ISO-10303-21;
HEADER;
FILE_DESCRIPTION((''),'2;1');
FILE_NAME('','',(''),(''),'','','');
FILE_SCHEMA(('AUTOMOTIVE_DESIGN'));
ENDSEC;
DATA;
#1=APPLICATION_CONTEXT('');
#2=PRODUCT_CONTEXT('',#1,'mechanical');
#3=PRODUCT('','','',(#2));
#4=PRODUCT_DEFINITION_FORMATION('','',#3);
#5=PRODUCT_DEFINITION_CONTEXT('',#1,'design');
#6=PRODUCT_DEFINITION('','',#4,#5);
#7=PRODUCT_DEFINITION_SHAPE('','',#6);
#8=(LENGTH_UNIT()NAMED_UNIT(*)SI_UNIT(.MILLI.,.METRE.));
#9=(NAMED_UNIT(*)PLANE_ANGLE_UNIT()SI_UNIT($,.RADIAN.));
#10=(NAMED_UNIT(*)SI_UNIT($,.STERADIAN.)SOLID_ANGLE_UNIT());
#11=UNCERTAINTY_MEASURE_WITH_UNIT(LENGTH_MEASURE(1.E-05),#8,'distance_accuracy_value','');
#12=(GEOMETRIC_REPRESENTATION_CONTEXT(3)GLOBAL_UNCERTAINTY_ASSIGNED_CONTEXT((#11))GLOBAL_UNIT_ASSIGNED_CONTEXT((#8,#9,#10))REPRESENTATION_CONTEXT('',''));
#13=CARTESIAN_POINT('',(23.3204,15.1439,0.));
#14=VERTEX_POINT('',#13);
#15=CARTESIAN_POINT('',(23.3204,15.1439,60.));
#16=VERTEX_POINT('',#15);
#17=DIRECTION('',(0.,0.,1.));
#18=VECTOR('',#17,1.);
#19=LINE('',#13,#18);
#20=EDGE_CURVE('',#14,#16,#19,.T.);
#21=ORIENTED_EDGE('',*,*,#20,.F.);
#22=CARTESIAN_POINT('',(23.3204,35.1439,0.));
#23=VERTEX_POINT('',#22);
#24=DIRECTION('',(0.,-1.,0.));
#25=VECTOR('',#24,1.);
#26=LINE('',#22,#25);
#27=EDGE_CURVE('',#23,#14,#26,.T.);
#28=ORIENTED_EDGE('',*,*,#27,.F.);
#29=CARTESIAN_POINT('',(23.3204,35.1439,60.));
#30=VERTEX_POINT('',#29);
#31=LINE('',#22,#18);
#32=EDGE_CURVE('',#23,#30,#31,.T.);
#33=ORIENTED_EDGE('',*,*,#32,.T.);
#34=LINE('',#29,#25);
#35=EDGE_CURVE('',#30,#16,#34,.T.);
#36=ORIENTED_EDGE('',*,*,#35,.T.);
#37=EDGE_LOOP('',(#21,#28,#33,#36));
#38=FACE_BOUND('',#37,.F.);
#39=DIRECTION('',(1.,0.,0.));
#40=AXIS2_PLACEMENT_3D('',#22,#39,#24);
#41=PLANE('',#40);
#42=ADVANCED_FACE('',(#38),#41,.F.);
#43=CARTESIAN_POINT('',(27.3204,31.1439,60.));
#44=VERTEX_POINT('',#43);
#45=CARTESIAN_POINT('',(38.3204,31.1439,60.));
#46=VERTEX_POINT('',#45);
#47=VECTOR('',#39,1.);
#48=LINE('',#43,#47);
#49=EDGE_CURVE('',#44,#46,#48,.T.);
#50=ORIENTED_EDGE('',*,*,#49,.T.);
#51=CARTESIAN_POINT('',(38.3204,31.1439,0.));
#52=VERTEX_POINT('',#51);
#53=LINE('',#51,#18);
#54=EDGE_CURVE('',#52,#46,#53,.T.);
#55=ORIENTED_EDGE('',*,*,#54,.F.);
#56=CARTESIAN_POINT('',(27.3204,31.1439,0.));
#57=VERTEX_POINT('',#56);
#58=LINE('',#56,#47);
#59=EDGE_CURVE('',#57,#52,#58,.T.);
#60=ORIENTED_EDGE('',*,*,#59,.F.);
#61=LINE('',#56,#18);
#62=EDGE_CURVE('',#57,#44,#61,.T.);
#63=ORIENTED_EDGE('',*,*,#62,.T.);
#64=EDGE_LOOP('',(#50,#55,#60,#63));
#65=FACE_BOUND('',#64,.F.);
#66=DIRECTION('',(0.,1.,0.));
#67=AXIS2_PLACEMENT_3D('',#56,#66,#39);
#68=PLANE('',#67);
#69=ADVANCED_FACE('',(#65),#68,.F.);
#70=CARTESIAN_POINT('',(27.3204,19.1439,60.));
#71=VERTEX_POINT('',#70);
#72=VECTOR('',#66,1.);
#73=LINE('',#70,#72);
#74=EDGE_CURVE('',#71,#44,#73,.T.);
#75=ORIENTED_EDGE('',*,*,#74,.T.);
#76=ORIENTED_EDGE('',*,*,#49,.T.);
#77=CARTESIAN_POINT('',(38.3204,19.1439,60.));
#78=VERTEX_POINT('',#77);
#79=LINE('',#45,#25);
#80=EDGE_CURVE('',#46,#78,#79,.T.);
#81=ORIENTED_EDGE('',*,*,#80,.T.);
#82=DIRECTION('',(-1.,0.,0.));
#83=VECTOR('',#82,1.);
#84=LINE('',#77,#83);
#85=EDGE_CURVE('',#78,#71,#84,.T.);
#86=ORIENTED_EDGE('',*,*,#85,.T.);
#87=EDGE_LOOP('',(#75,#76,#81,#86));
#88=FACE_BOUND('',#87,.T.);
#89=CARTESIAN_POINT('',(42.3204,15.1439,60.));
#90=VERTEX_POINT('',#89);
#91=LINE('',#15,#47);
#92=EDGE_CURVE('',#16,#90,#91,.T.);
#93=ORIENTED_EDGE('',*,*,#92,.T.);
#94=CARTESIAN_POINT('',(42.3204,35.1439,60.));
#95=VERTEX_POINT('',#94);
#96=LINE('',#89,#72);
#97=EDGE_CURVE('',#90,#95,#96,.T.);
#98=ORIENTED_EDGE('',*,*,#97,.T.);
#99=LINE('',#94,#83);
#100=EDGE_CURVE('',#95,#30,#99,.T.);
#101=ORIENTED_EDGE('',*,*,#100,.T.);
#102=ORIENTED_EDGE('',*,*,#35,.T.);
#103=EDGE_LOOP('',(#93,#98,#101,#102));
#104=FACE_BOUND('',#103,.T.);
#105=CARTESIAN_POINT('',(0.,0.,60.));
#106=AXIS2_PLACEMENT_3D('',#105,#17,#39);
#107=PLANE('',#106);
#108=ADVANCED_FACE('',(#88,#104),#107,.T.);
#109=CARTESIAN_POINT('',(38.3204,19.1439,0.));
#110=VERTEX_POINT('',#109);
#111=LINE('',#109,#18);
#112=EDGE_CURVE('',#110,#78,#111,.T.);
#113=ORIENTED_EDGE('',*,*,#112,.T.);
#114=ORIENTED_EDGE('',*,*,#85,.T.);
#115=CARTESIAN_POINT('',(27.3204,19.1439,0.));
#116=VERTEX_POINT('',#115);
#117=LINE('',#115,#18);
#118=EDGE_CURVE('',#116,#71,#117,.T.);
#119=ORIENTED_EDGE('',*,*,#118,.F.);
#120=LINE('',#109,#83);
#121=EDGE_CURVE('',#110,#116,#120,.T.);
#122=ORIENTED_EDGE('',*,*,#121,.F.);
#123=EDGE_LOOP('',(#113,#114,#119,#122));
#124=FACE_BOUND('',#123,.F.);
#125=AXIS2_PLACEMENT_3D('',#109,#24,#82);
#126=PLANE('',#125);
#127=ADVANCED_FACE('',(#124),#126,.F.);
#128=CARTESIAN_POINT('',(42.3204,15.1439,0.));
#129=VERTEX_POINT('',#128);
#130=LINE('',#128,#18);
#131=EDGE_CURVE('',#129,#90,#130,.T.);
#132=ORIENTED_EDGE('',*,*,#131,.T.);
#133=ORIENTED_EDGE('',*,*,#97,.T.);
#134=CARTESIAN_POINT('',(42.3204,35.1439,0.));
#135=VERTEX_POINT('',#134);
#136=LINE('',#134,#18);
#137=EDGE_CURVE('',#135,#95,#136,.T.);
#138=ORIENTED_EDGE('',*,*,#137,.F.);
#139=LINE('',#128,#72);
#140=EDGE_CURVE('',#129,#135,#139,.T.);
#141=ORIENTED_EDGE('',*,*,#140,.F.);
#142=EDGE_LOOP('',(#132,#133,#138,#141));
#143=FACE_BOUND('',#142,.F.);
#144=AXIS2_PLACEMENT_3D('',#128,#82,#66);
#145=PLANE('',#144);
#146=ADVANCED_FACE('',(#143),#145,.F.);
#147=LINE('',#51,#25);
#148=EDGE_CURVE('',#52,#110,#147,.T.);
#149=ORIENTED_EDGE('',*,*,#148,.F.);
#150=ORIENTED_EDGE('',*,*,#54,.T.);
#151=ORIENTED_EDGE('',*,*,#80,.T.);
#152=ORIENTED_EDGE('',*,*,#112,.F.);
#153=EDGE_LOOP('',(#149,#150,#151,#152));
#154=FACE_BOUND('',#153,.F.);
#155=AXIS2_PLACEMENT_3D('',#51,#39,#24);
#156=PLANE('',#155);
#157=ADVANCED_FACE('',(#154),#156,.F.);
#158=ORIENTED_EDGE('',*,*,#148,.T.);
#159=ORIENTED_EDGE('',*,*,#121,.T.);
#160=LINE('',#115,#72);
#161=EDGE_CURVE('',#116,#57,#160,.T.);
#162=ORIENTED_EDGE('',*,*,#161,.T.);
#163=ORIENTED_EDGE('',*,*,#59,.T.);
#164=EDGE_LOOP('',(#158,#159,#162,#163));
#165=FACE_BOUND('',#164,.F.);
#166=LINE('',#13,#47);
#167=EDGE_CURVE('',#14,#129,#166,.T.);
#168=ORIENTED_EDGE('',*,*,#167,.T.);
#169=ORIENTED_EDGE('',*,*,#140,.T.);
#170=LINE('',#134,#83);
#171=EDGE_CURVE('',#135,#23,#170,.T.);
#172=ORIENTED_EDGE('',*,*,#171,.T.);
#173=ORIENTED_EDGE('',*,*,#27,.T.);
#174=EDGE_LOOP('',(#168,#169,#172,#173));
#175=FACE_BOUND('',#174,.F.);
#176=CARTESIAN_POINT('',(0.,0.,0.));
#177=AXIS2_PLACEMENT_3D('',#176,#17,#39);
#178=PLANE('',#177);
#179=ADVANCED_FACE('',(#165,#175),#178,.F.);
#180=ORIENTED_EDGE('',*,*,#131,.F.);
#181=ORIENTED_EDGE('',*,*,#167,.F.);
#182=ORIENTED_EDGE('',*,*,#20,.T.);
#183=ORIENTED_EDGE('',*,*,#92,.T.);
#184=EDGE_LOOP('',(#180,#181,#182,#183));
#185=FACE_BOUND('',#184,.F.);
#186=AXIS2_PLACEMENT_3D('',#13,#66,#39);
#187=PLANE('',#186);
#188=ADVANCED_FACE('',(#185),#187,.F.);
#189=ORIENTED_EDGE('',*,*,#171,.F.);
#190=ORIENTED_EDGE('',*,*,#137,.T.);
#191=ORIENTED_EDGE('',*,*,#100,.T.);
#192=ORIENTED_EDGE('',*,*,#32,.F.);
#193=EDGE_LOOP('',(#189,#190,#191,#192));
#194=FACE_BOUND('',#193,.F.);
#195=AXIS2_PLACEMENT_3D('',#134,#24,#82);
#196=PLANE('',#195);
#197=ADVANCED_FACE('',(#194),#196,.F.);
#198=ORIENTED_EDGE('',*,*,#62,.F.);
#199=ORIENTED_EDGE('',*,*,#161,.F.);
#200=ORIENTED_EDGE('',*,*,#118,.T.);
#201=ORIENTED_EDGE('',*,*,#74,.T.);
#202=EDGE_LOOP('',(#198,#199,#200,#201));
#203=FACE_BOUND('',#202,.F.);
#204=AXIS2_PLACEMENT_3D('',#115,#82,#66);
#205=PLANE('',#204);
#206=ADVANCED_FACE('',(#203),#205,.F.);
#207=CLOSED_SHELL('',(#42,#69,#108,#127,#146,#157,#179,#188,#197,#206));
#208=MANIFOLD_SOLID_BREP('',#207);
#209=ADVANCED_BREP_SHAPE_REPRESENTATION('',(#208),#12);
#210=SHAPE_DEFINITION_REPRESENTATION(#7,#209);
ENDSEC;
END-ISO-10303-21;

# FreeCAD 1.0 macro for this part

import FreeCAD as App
import Part
import Sketcher

V = App.Vector

doc = App.newDocument("Part")
body = doc.addObject("PartDesign::Body", "Body")

sketch1 = body.newObject("Sketcher::SketchObject", "Sketch")
sketch1.AttachmentSupport = (doc.getObject("XY_Plane"), [""])
sketch1.MapMode = "FlatFace"
sketch1.addGeometry([
    Part.LineSegment(V(42, 15, 0), V(42, 35, 0)),
    Part.LineSegment(V(42, 35, 0), V(23, 35, 0)),
    Part.LineSegment(V(23, 35, 0), V(23, 15, 0)),
    Part.LineSegment(V(23, 15, 0), V(42, 15, 0)),
    Part.LineSegment(V(27, 19, 0), V(27, 31, 0)),
    Part.LineSegment(V(27, 31, 0), V(38, 31, 0)),
    Part.LineSegment(V(38, 31, 0), V(38, 19, 0)),
    Part.LineSegment(V(38, 19, 0), V(27, 19, 0)),
], False)
sketch1.addConstraint([
    Sketcher.Constraint("Coincident", 0, 2, 1, 1),
    Sketcher.Constraint("Coincident", 1, 2, 2, 1),
    Sketcher.Constraint("Coincident", 2, 2, 3, 1),
    Sketcher.Constraint("Coincident", 3, 2, 0, 1),
    Sketcher.Constraint("Coincident", 4, 2, 5, 1),
    Sketcher.Constraint("Coincident", 5, 2, 6, 1),
    Sketcher.Constraint("Coincident", 6, 2, 7, 1),
    Sketcher.Constraint("Coincident", 7, 2, 4, 1),
    Sketcher.Constraint("Vertical", 0),
    Sketcher.Constraint("Horizontal", 1),
    Sketcher.Constraint("Vertical", 2),
    Sketcher.Constraint("Horizontal", 3),
    Sketcher.Constraint("Vertical", 4),
    Sketcher.Constraint("Horizontal", 5),
    Sketcher.Constraint("Vertical", 6),
    Sketcher.Constraint("Horizontal", 7),
    Sketcher.Constraint("DistanceX", 5, 1, 5, 2, 11.0),
    Sketcher.Constraint("DistanceY", 4, 1, 4, 2, 12.0),
    Sketcher.Constraint("DistanceX", 1, 2, 4, 2, 4.0),
    Sketcher.Constraint("DistanceY", 4, 2, 1, 2, 4.0),
    Sketcher.Constraint("DistanceX", 5, 2, 0, 2, 4.0),
    Sketcher.Constraint("DistanceY", 3, 2, 6, 2, 4.0),
    Sketcher.Constraint("DistanceY", -1, 1, 0, 2, 35.144),
    Sketcher.Constraint("DistanceX", -1, 1, 0, 2, 42.3204),
])
pad1 = body.newObject("PartDesign::Pad", "Pad")
pad1.Profile = sketch1
pad1.Length = 60

doc.recompute()
